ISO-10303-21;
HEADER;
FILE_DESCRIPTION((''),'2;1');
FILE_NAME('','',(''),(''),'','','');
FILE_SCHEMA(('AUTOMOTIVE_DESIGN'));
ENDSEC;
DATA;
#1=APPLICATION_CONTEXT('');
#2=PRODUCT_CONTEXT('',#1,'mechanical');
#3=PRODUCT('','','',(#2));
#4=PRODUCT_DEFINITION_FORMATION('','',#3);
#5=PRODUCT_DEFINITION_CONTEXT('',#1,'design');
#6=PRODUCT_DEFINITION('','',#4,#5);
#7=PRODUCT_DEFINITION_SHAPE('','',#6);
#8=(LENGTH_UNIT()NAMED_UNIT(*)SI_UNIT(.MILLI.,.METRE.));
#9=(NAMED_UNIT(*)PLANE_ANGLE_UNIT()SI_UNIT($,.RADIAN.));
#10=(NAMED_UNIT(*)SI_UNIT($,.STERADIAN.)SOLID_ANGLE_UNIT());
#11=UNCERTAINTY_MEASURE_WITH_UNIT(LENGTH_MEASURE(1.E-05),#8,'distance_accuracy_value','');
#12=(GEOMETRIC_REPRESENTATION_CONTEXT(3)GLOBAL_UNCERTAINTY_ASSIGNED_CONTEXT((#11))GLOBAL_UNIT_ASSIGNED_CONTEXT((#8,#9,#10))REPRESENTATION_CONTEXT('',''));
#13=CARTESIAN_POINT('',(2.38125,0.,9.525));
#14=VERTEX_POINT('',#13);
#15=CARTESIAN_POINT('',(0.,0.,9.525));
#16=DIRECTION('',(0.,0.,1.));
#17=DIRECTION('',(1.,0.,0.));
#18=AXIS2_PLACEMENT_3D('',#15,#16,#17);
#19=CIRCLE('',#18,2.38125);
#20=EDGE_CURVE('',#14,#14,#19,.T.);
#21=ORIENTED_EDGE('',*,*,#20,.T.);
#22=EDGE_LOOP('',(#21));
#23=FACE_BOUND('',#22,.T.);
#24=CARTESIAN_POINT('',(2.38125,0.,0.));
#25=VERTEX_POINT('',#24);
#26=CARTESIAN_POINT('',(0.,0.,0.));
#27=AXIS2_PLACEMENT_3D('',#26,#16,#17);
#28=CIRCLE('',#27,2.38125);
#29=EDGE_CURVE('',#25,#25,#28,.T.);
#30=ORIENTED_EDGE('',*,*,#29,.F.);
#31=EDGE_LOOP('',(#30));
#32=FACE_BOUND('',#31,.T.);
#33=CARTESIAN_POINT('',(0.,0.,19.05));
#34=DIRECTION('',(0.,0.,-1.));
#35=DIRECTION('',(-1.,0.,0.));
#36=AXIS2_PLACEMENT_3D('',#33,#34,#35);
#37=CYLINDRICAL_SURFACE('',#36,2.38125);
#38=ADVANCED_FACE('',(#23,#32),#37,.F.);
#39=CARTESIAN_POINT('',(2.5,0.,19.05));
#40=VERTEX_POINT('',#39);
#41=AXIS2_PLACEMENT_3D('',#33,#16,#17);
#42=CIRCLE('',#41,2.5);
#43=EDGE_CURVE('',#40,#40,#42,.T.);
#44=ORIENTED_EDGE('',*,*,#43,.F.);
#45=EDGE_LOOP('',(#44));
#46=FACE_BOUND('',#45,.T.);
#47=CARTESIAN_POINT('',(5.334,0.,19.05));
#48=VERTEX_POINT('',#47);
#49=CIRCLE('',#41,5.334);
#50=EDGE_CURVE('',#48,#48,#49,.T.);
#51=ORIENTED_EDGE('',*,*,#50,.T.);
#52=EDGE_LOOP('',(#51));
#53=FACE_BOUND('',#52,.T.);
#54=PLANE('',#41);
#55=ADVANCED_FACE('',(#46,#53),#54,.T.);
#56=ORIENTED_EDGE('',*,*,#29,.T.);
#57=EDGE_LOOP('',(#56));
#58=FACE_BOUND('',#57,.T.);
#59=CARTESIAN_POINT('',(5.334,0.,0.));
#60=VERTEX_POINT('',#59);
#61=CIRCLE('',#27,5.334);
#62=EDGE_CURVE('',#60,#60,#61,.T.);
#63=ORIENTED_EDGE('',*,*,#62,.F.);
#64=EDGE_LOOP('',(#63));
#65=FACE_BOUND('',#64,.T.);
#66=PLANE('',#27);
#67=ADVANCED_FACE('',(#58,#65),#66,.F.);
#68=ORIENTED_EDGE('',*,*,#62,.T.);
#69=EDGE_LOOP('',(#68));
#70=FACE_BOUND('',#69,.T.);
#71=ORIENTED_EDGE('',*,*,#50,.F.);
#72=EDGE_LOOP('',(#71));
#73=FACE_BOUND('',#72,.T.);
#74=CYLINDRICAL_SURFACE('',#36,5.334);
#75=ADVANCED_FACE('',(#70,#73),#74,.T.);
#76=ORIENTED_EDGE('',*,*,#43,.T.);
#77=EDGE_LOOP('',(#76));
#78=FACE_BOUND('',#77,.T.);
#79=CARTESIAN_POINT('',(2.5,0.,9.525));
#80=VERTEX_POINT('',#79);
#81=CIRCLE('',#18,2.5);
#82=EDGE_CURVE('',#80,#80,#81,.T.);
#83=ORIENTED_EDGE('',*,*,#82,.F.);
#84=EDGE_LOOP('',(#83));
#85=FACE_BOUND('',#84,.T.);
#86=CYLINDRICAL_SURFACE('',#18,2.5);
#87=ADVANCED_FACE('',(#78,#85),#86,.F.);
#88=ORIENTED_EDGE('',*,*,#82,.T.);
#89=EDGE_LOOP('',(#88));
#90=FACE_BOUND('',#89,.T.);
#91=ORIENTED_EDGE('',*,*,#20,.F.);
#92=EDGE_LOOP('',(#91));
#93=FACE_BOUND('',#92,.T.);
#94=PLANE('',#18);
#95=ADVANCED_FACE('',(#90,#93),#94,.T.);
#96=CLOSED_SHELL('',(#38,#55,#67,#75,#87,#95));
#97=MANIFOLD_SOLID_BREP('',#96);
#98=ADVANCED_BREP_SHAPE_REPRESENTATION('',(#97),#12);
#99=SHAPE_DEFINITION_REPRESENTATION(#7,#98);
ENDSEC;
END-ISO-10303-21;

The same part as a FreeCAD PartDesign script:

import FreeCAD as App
import Part
import Sketcher
from FreeCAD import Vector
Q = App.Units.Quantity

doc = App.newDocument("Part")
body = doc.addObject("PartDesign::Body", "Body")

# Sketch on XY plane
sketch1 = doc.addObject("Sketcher::SketchObject", "Sketch")
body.addObject(sketch1)
sketch1.AttachmentSupport = (doc.XY_Plane, [""])
sketch1.MapMode = "FlatFace"
sketch1.addGeometry(Part.Circle(Vector(0, 0, 0), Vector(0, 0, 1), 5.3), False)
sketch1.addGeometry(Part.Circle(Vector(0, 0, 0), Vector(0, 0, 1), 2.4), False)
sketch1.addConstraint(Sketcher.Constraint("Coincident", 0, 3, -1, 1))
sketch1.addConstraint(Sketcher.Constraint("Coincident", 1, 3, -1, 1))
sketch1.addConstraint(Sketcher.Constraint("Diameter", 0, Q("0.42 in")))
sketch1.addConstraint(Sketcher.Constraint("Diameter", 1, Q("0.1875 in")))
pad1 = doc.addObject("PartDesign::Pad", "Pad")
body.addObject(pad1)
pad1.Profile = sketch1
pad1.Length = Q("0.75 in")

# Sketch on XY plane
sketch2 = doc.addObject("Sketcher::SketchObject", "Sketch001")
body.addObject(sketch2)
sketch2.AttachmentSupport = (doc.XY_Plane, [""])
sketch2.MapMode = "FlatFace"
sketch2.AttachmentOffset = App.Placement(Vector(0, 0, 0.75 * 25.4), App.Rotation())
sketch2.addGeometry(Part.Circle(Vector(0, 0, 0), Vector(0, 0, 1), 2.5), False)
sketch2.addConstraint(Sketcher.Constraint("Coincident", 0, 3, -1, 1))
sketch2.addConstraint(Sketcher.Constraint("Diameter", 0, Q("5 mm")))
pocket1 = doc.addObject("PartDesign::Pocket", "Pocket")
body.addObject(pocket1)
pocket1.Profile = sketch2
pocket1.Length = Q("0.75 in")
pocket1.Midplane = True

doc.recompute()
